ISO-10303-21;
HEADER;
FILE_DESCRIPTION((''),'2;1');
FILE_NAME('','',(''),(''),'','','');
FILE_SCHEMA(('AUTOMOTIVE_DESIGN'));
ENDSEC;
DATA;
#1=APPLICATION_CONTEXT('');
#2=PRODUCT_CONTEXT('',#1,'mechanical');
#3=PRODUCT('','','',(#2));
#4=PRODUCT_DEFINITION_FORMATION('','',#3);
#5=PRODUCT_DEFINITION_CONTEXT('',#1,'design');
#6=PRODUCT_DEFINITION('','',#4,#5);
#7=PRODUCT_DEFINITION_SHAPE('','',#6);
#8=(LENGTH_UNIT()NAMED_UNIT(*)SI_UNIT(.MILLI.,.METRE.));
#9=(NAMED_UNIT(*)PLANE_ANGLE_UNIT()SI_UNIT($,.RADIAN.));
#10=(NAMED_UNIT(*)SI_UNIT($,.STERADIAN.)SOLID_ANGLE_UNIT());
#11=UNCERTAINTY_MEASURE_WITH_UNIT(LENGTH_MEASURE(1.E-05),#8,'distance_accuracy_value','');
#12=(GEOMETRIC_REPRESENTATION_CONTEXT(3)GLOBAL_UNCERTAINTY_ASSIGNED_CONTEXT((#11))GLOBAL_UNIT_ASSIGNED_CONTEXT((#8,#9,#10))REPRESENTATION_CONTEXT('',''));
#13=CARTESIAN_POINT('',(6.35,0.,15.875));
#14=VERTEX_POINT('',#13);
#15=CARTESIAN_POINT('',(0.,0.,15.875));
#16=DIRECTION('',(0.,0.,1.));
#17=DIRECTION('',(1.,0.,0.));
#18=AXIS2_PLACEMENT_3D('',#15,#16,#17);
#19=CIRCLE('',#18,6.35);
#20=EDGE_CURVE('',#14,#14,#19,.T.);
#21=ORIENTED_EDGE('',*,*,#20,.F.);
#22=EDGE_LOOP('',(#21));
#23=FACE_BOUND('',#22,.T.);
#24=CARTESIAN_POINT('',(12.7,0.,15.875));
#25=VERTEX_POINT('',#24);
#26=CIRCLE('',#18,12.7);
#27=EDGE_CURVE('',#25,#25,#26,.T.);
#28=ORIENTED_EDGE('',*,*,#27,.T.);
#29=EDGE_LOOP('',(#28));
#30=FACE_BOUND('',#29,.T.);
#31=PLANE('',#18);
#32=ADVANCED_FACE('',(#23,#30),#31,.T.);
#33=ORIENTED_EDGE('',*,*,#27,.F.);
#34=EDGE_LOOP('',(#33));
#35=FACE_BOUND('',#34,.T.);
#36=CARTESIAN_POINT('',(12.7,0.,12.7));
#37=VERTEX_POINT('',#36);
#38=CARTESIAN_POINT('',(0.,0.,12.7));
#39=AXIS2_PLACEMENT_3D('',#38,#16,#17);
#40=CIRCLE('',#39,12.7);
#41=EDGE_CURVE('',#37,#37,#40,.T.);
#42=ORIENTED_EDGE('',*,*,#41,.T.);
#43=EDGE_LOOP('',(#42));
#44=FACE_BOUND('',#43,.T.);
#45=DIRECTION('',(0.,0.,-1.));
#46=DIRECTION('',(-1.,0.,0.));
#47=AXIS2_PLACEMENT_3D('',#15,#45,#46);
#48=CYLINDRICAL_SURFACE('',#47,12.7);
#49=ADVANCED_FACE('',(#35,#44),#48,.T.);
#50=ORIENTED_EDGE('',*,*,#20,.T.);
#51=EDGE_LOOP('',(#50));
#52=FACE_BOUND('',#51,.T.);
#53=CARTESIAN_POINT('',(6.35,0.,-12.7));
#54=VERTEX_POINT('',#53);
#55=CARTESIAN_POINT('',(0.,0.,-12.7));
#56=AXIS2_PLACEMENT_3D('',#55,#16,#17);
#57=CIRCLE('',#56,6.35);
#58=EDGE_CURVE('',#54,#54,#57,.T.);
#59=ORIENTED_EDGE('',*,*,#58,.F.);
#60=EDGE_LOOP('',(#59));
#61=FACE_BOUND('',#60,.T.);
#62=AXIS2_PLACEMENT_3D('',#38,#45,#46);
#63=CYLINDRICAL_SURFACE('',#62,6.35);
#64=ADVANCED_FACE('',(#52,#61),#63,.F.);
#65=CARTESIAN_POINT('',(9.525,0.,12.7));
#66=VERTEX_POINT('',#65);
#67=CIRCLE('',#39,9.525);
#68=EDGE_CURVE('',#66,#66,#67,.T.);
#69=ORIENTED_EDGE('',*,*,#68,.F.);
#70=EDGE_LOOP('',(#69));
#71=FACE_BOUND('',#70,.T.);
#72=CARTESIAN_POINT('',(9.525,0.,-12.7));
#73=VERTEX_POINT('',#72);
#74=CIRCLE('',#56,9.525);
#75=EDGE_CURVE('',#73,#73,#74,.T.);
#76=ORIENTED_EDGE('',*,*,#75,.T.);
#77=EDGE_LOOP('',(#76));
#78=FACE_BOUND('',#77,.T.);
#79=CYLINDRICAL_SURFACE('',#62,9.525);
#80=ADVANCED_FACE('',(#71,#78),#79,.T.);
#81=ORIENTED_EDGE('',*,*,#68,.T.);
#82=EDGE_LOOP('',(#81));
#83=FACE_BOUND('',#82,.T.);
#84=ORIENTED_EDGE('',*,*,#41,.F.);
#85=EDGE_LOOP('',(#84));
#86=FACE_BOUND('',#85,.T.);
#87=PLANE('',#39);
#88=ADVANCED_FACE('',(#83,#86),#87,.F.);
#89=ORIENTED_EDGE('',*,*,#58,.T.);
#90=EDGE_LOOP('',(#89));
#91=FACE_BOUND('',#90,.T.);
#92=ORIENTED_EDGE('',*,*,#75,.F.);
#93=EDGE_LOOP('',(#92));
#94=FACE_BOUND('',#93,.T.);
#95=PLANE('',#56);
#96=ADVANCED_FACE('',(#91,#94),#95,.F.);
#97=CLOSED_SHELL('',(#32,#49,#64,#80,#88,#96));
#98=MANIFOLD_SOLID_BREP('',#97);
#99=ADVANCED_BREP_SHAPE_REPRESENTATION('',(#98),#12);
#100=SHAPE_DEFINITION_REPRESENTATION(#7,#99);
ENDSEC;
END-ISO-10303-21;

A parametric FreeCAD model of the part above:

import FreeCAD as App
import Part
import Sketcher
from FreeCAD import Vector
Q = App.Units.Quantity

doc = App.newDocument("Part")
body = doc.addObject("PartDesign::Body", "Body")

# Sketch on XY plane
sketch1 = doc.addObject("Sketcher::SketchObject", "Sketch")
body.addObject(sketch1)
sketch1.AttachmentSupport = (doc.XY_Plane, [""])
sketch1.MapMode = "FlatFace"
sketch1.addGeometry([
    Part.Circle(Vector(0, 0, 0), Vector(0, 0, 1), 10),
    Part.Circle(Vector(0, 0, 0), Vector(0, 0, 1), 6),
], False)
sketch1.addConstraint([
    Sketcher.Constraint("Coincident", 0, 3, -1, 1),
    Sketcher.Constraint("Coincident", 1, 3, -1, 1),
    Sketcher.Constraint("Diameter", 1, Q("0.5 in")),
    Sketcher.Constraint("Diameter", 0, Q("0.75 in")),
])
pad1 = doc.addObject("PartDesign::Pad", "Pad")
body.addObject(pad1)
pad1.Profile = sketch1
pad1.Length = Q("1 in")
pad1.Midplane = True

# Sketch on XY plane
sketch2 = doc.addObject("Sketcher::SketchObject", "Sketch001")
body.addObject(sketch2)
sketch2.AttachmentSupport = (doc.XY_Plane, [""])
sketch2.MapMode = "FlatFace"
sketch2.AttachmentOffset = App.Placement(Vector(0, 0, 0.5 * 25.4), App.Rotation())
sketch2.addGeometry([
    Part.Circle(Vector(0, 0, 0), Vector(0, 0, 1), 13),
    Part.Circle(Vector(0, 0, 0), Vector(0, 0, 1), 6),
], False)
sketch2.addConstraint([
    Sketcher.Constraint("Coincident", 0, 3, -1, 1),
    Sketcher.Constraint("Coincident", 1, 3, -1, 1),
    Sketcher.Constraint("Diameter", 0, Q("1 in")),
    Sketcher.Constraint("Diameter", 1, Q("0.5 in")),
])
pad2 = doc.addObject("PartDesign::Pad", "Pad001")
body.addObject(pad2)
pad2.Profile = sketch2
pad2.Length = Q("0.125 in")

doc.recompute()
